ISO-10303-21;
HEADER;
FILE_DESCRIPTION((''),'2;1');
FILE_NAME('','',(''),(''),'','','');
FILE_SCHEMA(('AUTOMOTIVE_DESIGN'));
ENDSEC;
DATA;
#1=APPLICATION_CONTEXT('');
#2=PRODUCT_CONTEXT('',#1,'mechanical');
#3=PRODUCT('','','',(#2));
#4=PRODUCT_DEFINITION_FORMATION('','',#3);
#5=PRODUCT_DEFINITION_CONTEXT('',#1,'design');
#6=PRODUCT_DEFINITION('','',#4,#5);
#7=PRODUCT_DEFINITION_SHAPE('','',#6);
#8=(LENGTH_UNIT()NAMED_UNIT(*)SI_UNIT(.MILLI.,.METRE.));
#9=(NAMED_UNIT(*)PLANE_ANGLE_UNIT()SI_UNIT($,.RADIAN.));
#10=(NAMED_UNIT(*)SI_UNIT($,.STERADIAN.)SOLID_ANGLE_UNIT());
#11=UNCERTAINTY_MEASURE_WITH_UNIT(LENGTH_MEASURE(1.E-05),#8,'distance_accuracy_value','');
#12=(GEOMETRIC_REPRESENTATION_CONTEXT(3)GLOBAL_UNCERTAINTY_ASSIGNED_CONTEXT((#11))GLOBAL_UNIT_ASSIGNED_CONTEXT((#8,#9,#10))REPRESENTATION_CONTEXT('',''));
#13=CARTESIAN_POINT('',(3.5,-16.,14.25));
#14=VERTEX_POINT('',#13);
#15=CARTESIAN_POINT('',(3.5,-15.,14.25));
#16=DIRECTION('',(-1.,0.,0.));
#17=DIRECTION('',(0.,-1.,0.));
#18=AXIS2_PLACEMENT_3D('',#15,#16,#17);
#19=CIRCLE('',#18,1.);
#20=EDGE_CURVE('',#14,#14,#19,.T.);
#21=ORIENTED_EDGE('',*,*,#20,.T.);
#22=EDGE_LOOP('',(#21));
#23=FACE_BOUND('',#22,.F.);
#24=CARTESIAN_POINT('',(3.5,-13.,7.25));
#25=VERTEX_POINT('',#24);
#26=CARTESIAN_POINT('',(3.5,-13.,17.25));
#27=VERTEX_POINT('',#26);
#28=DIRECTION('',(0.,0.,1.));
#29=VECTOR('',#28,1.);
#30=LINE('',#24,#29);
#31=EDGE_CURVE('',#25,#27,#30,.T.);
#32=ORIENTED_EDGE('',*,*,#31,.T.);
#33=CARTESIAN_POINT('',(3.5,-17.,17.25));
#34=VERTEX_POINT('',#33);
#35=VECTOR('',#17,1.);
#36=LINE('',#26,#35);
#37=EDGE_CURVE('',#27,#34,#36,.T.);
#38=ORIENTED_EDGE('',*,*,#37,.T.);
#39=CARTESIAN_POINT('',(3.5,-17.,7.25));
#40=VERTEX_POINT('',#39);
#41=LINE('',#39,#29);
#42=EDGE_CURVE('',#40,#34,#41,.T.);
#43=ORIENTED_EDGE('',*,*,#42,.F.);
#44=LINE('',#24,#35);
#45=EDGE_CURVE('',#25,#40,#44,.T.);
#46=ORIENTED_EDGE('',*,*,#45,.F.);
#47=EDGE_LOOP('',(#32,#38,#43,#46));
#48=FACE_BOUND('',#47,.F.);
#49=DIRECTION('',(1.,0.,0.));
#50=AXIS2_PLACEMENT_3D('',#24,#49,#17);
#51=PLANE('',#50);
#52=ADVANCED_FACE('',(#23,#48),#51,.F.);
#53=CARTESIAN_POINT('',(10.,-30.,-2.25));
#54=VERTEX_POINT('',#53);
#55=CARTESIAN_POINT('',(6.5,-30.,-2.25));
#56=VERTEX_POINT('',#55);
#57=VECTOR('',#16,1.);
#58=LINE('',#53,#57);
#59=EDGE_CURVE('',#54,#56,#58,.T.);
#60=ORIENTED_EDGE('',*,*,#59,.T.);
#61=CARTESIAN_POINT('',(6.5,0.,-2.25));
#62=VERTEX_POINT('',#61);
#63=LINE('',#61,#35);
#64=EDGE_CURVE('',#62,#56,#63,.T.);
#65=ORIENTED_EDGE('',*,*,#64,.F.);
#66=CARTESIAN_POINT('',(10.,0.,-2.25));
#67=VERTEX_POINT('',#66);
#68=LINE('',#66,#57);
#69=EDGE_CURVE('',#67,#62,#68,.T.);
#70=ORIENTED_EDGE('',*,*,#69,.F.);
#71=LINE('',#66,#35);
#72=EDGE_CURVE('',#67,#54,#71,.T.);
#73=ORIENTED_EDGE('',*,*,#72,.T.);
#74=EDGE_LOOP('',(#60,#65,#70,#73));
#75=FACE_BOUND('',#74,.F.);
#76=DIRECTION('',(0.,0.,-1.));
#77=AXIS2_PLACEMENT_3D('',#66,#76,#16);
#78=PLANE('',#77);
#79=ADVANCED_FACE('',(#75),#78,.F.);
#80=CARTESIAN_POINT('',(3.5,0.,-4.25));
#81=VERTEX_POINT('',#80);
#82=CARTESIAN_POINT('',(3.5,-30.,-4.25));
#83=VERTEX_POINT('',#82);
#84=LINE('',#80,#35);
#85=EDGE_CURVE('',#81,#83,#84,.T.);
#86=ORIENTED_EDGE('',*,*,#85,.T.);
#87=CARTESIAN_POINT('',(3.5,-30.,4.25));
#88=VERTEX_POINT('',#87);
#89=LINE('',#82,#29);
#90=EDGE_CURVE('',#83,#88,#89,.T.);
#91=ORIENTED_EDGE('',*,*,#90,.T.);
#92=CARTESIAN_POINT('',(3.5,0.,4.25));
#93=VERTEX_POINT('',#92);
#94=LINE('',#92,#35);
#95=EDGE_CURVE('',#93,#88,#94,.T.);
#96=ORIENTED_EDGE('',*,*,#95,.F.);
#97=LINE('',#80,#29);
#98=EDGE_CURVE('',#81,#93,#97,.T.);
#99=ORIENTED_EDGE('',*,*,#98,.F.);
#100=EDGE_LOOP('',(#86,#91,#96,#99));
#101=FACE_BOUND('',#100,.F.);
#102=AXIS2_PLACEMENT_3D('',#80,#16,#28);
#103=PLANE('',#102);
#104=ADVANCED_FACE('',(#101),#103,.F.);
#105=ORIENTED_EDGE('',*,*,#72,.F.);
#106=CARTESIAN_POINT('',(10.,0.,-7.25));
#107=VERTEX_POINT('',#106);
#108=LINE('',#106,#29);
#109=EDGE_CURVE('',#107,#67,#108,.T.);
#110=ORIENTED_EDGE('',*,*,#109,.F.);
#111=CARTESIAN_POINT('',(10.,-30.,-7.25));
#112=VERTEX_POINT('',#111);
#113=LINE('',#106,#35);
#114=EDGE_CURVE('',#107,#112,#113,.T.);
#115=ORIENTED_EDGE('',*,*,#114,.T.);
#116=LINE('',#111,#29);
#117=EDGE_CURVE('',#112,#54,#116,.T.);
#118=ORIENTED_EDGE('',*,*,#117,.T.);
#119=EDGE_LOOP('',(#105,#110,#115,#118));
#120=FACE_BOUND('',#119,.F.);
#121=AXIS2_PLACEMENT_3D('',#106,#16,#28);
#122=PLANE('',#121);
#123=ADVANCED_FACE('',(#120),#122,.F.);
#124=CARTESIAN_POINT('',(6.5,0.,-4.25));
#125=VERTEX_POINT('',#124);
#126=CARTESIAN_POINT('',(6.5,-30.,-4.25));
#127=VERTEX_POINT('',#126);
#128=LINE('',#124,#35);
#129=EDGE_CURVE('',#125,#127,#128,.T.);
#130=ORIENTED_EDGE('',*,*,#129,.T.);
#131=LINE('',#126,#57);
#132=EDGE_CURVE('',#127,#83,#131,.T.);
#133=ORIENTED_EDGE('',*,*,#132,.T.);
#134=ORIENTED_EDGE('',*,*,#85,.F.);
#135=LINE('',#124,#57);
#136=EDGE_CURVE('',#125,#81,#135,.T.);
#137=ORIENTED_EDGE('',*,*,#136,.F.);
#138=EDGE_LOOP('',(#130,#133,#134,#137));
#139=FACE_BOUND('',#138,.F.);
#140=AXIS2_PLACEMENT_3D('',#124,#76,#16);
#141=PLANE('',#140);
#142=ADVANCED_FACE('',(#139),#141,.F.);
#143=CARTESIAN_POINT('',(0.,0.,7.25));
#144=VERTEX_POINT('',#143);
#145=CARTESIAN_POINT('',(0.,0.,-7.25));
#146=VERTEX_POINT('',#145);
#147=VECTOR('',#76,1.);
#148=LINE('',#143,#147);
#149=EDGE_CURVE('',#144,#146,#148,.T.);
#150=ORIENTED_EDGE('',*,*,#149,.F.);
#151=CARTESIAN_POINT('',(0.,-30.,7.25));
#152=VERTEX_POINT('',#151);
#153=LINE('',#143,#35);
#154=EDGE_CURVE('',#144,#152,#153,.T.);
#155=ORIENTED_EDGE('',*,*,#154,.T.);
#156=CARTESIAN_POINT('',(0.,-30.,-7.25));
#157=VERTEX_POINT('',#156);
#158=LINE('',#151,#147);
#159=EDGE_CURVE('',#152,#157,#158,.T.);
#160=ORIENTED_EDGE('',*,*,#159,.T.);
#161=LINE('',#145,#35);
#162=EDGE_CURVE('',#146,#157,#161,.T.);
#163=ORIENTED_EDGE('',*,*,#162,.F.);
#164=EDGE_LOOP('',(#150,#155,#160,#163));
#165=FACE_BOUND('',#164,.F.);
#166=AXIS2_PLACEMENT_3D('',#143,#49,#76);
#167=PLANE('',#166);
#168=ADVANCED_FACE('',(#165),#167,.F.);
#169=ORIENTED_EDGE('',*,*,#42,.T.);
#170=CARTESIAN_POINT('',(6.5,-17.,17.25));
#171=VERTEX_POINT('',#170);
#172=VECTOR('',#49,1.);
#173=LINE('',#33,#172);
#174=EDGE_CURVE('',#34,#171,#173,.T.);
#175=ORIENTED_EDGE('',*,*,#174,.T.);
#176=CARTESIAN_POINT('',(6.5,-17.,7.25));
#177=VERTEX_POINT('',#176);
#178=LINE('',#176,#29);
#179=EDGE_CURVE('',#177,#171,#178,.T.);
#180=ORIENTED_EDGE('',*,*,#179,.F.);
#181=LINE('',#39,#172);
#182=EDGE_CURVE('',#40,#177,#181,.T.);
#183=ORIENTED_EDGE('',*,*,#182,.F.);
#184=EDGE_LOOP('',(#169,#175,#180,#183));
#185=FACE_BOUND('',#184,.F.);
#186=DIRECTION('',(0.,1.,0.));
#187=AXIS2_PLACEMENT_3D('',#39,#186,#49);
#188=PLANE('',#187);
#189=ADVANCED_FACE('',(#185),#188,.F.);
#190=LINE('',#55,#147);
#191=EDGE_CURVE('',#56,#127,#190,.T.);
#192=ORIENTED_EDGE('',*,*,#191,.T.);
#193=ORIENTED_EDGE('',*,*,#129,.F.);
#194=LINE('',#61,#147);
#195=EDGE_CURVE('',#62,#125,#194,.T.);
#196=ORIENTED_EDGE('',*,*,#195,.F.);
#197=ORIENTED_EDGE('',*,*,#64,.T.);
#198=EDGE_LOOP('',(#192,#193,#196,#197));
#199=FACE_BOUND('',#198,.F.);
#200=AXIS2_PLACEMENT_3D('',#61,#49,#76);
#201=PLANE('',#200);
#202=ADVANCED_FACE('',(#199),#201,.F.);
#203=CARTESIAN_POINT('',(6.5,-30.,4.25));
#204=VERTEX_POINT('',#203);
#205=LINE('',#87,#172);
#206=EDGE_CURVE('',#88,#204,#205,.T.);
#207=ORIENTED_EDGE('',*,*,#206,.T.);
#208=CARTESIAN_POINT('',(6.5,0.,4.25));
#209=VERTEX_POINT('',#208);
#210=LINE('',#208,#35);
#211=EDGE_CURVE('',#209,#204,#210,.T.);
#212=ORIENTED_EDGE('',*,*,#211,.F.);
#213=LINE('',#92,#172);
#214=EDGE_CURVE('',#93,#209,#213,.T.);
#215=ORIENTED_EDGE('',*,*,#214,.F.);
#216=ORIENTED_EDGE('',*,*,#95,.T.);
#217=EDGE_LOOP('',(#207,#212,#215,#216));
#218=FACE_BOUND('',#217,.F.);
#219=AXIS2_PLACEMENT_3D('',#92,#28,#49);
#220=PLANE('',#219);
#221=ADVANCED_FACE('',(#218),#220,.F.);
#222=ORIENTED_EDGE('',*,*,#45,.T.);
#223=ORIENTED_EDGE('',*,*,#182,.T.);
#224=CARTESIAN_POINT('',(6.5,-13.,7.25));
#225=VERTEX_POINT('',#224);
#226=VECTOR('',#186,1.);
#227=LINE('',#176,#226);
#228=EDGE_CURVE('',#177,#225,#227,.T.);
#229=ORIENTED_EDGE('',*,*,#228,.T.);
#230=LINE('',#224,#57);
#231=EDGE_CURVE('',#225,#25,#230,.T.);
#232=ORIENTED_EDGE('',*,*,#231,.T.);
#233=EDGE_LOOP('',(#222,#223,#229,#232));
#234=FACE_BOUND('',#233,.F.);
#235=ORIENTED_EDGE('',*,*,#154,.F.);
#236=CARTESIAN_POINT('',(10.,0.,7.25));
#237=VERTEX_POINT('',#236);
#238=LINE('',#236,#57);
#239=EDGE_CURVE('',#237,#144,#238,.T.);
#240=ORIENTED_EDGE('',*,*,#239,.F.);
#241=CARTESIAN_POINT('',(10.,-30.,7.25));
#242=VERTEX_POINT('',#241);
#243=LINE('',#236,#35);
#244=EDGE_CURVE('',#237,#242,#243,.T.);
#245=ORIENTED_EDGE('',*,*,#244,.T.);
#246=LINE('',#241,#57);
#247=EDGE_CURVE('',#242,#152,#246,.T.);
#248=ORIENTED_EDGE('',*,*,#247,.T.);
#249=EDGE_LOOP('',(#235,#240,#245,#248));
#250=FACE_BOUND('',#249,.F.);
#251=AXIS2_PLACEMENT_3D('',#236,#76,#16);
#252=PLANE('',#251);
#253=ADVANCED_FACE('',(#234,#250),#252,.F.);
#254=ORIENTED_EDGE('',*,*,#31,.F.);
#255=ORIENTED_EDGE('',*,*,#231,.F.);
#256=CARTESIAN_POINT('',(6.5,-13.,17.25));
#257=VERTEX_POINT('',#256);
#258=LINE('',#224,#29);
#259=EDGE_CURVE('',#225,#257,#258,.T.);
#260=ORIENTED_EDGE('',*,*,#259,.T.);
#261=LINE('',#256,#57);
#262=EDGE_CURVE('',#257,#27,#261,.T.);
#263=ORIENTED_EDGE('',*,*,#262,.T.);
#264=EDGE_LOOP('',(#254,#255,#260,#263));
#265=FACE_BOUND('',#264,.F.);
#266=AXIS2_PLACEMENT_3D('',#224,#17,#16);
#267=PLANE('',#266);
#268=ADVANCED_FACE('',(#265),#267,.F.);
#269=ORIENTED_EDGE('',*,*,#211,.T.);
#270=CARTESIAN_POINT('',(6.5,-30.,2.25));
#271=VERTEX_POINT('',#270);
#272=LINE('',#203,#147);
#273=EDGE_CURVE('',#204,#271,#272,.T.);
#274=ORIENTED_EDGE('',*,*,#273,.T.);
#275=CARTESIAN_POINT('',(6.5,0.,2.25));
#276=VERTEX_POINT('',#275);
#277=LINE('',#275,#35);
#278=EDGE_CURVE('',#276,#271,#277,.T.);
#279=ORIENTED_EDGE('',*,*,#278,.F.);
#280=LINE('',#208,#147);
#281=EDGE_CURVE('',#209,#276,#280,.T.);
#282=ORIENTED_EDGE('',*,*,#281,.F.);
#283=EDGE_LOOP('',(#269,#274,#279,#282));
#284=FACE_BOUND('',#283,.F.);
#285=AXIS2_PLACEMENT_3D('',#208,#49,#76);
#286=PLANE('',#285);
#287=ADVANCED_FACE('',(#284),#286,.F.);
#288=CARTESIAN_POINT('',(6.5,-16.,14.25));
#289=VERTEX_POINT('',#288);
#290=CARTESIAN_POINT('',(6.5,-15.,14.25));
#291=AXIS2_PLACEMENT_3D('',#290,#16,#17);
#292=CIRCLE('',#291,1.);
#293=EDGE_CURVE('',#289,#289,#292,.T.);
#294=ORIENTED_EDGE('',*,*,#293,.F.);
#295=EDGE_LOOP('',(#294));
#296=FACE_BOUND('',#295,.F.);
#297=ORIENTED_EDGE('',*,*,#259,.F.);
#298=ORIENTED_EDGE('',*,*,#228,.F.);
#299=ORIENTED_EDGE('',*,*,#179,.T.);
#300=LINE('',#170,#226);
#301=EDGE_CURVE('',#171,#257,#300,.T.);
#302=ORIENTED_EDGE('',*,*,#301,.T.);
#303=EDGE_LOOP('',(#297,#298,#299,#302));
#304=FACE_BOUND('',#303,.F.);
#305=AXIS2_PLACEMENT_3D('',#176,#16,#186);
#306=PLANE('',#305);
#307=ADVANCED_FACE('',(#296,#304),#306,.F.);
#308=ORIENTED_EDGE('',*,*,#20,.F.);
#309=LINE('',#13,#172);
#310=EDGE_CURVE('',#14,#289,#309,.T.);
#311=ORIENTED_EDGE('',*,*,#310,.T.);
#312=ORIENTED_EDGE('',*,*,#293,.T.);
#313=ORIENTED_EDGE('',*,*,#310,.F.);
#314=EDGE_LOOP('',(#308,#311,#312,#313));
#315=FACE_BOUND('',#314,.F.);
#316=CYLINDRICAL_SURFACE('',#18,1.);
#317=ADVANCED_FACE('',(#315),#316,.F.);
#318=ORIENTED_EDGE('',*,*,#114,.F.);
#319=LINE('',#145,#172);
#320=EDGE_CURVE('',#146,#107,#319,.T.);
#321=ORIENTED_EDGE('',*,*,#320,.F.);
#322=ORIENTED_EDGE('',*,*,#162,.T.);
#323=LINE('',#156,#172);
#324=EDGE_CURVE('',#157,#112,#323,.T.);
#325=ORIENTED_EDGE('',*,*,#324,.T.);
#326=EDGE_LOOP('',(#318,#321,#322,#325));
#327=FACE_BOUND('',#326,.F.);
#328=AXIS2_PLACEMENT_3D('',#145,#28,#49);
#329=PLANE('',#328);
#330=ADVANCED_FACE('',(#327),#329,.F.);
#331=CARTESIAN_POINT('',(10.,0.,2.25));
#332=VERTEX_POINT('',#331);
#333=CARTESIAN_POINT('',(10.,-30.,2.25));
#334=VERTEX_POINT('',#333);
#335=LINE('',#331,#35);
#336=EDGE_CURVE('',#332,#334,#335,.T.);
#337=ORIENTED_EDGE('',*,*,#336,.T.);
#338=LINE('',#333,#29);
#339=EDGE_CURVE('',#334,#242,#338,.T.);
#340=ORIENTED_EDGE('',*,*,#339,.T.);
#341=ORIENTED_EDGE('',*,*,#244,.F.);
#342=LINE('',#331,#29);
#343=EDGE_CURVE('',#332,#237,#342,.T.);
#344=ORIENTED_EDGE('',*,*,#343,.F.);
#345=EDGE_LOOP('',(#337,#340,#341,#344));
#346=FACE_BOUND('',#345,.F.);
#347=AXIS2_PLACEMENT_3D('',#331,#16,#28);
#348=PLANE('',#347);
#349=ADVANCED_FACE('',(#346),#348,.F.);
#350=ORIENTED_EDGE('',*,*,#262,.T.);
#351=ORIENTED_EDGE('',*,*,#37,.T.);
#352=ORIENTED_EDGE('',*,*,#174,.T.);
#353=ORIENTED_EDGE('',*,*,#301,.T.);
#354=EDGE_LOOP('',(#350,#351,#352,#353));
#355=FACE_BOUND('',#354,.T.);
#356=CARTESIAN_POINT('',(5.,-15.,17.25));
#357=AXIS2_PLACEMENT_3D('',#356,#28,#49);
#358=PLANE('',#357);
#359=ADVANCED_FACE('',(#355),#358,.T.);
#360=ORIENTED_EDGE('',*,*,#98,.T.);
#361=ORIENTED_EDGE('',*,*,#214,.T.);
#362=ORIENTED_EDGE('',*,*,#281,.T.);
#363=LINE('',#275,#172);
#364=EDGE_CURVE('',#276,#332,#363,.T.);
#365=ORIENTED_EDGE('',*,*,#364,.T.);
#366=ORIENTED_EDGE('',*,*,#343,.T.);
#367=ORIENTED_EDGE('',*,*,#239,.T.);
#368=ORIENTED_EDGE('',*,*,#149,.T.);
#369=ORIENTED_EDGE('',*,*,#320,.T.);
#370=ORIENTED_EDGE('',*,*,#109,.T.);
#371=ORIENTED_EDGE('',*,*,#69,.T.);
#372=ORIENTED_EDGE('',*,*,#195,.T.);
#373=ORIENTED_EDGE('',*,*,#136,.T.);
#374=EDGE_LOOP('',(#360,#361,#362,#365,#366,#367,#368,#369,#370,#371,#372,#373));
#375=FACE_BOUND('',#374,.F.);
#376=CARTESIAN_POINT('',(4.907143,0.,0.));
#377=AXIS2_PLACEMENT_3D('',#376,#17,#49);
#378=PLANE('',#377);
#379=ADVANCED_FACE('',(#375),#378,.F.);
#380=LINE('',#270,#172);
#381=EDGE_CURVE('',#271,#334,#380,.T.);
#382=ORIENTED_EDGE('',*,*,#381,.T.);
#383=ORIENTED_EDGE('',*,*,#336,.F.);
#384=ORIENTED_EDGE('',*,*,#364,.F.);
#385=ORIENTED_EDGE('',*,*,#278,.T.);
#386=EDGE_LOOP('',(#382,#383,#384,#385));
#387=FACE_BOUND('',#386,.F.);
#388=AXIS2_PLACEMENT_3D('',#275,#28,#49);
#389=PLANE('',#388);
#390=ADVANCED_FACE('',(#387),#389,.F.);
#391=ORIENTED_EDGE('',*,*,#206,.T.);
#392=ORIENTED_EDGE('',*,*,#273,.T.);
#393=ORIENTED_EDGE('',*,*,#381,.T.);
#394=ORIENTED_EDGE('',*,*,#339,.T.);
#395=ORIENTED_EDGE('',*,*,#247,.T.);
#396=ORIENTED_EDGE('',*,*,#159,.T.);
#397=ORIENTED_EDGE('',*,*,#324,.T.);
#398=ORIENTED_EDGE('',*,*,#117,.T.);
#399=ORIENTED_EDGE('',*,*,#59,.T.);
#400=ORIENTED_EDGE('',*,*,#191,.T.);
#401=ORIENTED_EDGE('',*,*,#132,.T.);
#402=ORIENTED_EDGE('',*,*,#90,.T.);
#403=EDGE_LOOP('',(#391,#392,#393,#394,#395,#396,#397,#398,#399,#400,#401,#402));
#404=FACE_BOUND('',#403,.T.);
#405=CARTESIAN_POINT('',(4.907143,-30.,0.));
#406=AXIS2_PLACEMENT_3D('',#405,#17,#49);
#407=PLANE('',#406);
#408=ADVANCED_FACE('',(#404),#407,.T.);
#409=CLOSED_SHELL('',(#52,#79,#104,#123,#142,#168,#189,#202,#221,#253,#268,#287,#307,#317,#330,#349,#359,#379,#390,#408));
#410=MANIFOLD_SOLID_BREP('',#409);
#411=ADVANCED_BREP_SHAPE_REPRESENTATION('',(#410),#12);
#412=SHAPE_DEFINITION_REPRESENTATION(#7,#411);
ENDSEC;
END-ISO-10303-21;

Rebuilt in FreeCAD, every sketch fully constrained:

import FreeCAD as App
import Part
import Sketcher

V = App.Vector

doc = App.newDocument("Part")
body = doc.addObject("PartDesign::Body", "Body")

# Sketch on XZ plane
sketch1 = doc.addObject("Sketcher::SketchObject", "Sketch")
body.addObject(sketch1)
sketch1.AttachmentSupport = (doc.XZ_Plane, [""])
sketch1.MapMode = "FlatFace"
sketch1.addGeometry([
    Part.LineSegment(V(0, 7.25, 0), V(0, -7.25, 0)),  # 0
    Part.LineSegment(V(0, -7.25, 0), V(10, -7.25, 0)),  # 1
    Part.LineSegment(V(10, -7.25, 0), V(10, -2.25, 0)),  # 2
    Part.LineSegment(V(10, -2.25, 0), V(6.5, -2.25, 0)),  # 3
    Part.LineSegment(V(6.5, -2.25, 0), V(6.5, -4.25, 0)),  # 4
    Part.LineSegment(V(6.5, -4.25, 0), V(3.5, -4.25, 0)),  # 5
    Part.LineSegment(V(3.5, -4.25, 0), V(3.5, 4.25, 0)),  # 6
    Part.LineSegment(V(3.5, 4.25, 0), V(6.5, 4.25, 0)),  # 7
    Part.LineSegment(V(6.5, 4.25, 0), V(6.5, 2.25, 0)),  # 8
    Part.LineSegment(V(6.5, 2.25, 0), V(10, 2.25, 0)),  # 9
    Part.LineSegment(V(10, 2.25, 0), V(10, 7.25, 0)),  # 10
    Part.LineSegment(V(10, 7.25, 0), V(0, 7.25, 0)),  # 11
], False)
sketch1.addConstraint([
    Sketcher.Constraint("Coincident", 0, 2, 1, 1),
    Sketcher.Constraint("Coincident", 1, 2, 2, 1),
    Sketcher.Constraint("Coincident", 2, 2, 3, 1),
    Sketcher.Constraint("Coincident", 3, 2, 4, 1),
    Sketcher.Constraint("Coincident", 4, 2, 5, 1),
    Sketcher.Constraint("Coincident", 5, 2, 6, 1),
    Sketcher.Constraint("Coincident", 6, 2, 7, 1),
    Sketcher.Constraint("Coincident", 7, 2, 8, 1),
    Sketcher.Constraint("Coincident", 8, 2, 9, 1),
    Sketcher.Constraint("Coincident", 9, 2, 10, 1),
    Sketcher.Constraint("Coincident", 10, 2, 11, 1),
    Sketcher.Constraint("Coincident", 11, 2, 0, 1),
    Sketcher.Constraint("Vertical", 0),
    Sketcher.Constraint("Horizontal", 1),
    Sketcher.Constraint("Vertical", 2),
    Sketcher.Constraint("Horizontal", 3),
    Sketcher.Constraint("Vertical", 4),
    Sketcher.Constraint("Horizontal", 5),
    Sketcher.Constraint("Vertical", 6),
    Sketcher.Constraint("Horizontal", 7),
    Sketcher.Constraint("Vertical", 8),
    Sketcher.Constraint("Horizontal", 9),
    Sketcher.Constraint("Vertical", 10),
    Sketcher.Constraint("Horizontal", 11),
    Sketcher.Constraint("Symmetric", 0, 2, 11, 2, -1, 1),
    Sketcher.Constraint("Symmetric", 4, 2, 7, 2, -1),
    Sketcher.Constraint("Symmetric", 2, 2, 9, 2, -1),
    Sketcher.Constraint("DistanceX", 1, 1, 1, 2, 10.0),
    Sketcher.Constraint("DistanceX", 5, 2, 5, 1, 3.0),
    Sketcher.Constraint("DistanceY", 2, 1, 2, 2, 5.0),
    Sketcher.Constraint("DistanceY", 4, 2, 4, 1, 2.0),
    Sketcher.Constraint("DistanceX", 3, 2, 3, 1, 3.5),
    Sketcher.Constraint("DistanceY", 0, 2, 0, 1, 14.5),
])
pad1 = doc.addObject("PartDesign::Pad", "Pad")
body.addObject(pad1)
pad1.Profile = sketch1
pad1.Length = 30

# Sketch on XY plane
sketch2 = doc.addObject("Sketcher::SketchObject", "Sketch001")
body.addObject(sketch2)
sketch2.AttachmentSupport = (doc.XY_Plane, [""])
sketch2.MapMode = "FlatFace"
sketch2.AttachmentOffset = App.Placement(V(0, 0, 7.25), App.Rotation())
sketch2.addGeometry([
    Part.LineSegment(V(6.5, -13, 0), V(3.5, -13, 0)),
    Part.LineSegment(V(3.5, -13, 0), V(3.5, -17, 0)),
    Part.LineSegment(V(3.5, -17, 0), V(6.5, -17, 0)),
    Part.LineSegment(V(6.5, -17, 0), V(6.5, -13, 0)),
], False)
sketch2.addConstraint([
    Sketcher.Constraint("Coincident", 0, 2, 1, 1),
    Sketcher.Constraint("Coincident", 1, 2, 2, 1),
    Sketcher.Constraint("Coincident", 2, 2, 3, 1),
    Sketcher.Constraint("Coincident", 3, 2, 0, 1),
    Sketcher.Constraint("Horizontal", 0),
    Sketcher.Constraint("Vertical", 1),
    Sketcher.Constraint("Horizontal", 2),
    Sketcher.Constraint("Vertical", 3),
    Sketcher.Constraint("DistanceX", 0, 2, 0, 1, 3.0),
    Sketcher.Constraint("DistanceY", 1, 2, 1, 1, 4.0),
    Sketcher.Constraint("DistanceY", 0, 2, -1, 1, 13.0),
    Sketcher.Constraint("DistanceX", -1, 1, 0, 2, 3.5),
])
pad2 = doc.addObject("PartDesign::Pad", "Pad001")
body.addObject(pad2)
pad2.Profile = sketch2
pad2.Length = 10

# Sketch on YZ plane
sketch3 = doc.addObject("Sketcher::SketchObject", "Sketch002")
body.addObject(sketch3)
sketch3.AttachmentSupport = (doc.YZ_Plane, [""])
sketch3.MapMode = "FlatFace"
sketch3.AttachmentOffset = App.Placement(V(0, 0, 3.5), App.Rotation())
sketch3.addGeometry(Part.Circle(V(-15, 14.25, 0), V(0, 0, 1), 1), False)
sketch3.addConstraint([
    Sketcher.Constraint("Diameter", 0, 2.0),
    Sketcher.Constraint("DistanceX", 0, 3, -1, 1, 15.0),
    Sketcher.Constraint("DistanceY", -1, 1, 0, 3, 14.25),
])
pocket1 = doc.addObject("PartDesign::Pocket", "Pocket")
body.addObject(pocket1)
pocket1.Profile = sketch3
pocket1.Length = 5
pocket1.Reversed = True

doc.recompute()
